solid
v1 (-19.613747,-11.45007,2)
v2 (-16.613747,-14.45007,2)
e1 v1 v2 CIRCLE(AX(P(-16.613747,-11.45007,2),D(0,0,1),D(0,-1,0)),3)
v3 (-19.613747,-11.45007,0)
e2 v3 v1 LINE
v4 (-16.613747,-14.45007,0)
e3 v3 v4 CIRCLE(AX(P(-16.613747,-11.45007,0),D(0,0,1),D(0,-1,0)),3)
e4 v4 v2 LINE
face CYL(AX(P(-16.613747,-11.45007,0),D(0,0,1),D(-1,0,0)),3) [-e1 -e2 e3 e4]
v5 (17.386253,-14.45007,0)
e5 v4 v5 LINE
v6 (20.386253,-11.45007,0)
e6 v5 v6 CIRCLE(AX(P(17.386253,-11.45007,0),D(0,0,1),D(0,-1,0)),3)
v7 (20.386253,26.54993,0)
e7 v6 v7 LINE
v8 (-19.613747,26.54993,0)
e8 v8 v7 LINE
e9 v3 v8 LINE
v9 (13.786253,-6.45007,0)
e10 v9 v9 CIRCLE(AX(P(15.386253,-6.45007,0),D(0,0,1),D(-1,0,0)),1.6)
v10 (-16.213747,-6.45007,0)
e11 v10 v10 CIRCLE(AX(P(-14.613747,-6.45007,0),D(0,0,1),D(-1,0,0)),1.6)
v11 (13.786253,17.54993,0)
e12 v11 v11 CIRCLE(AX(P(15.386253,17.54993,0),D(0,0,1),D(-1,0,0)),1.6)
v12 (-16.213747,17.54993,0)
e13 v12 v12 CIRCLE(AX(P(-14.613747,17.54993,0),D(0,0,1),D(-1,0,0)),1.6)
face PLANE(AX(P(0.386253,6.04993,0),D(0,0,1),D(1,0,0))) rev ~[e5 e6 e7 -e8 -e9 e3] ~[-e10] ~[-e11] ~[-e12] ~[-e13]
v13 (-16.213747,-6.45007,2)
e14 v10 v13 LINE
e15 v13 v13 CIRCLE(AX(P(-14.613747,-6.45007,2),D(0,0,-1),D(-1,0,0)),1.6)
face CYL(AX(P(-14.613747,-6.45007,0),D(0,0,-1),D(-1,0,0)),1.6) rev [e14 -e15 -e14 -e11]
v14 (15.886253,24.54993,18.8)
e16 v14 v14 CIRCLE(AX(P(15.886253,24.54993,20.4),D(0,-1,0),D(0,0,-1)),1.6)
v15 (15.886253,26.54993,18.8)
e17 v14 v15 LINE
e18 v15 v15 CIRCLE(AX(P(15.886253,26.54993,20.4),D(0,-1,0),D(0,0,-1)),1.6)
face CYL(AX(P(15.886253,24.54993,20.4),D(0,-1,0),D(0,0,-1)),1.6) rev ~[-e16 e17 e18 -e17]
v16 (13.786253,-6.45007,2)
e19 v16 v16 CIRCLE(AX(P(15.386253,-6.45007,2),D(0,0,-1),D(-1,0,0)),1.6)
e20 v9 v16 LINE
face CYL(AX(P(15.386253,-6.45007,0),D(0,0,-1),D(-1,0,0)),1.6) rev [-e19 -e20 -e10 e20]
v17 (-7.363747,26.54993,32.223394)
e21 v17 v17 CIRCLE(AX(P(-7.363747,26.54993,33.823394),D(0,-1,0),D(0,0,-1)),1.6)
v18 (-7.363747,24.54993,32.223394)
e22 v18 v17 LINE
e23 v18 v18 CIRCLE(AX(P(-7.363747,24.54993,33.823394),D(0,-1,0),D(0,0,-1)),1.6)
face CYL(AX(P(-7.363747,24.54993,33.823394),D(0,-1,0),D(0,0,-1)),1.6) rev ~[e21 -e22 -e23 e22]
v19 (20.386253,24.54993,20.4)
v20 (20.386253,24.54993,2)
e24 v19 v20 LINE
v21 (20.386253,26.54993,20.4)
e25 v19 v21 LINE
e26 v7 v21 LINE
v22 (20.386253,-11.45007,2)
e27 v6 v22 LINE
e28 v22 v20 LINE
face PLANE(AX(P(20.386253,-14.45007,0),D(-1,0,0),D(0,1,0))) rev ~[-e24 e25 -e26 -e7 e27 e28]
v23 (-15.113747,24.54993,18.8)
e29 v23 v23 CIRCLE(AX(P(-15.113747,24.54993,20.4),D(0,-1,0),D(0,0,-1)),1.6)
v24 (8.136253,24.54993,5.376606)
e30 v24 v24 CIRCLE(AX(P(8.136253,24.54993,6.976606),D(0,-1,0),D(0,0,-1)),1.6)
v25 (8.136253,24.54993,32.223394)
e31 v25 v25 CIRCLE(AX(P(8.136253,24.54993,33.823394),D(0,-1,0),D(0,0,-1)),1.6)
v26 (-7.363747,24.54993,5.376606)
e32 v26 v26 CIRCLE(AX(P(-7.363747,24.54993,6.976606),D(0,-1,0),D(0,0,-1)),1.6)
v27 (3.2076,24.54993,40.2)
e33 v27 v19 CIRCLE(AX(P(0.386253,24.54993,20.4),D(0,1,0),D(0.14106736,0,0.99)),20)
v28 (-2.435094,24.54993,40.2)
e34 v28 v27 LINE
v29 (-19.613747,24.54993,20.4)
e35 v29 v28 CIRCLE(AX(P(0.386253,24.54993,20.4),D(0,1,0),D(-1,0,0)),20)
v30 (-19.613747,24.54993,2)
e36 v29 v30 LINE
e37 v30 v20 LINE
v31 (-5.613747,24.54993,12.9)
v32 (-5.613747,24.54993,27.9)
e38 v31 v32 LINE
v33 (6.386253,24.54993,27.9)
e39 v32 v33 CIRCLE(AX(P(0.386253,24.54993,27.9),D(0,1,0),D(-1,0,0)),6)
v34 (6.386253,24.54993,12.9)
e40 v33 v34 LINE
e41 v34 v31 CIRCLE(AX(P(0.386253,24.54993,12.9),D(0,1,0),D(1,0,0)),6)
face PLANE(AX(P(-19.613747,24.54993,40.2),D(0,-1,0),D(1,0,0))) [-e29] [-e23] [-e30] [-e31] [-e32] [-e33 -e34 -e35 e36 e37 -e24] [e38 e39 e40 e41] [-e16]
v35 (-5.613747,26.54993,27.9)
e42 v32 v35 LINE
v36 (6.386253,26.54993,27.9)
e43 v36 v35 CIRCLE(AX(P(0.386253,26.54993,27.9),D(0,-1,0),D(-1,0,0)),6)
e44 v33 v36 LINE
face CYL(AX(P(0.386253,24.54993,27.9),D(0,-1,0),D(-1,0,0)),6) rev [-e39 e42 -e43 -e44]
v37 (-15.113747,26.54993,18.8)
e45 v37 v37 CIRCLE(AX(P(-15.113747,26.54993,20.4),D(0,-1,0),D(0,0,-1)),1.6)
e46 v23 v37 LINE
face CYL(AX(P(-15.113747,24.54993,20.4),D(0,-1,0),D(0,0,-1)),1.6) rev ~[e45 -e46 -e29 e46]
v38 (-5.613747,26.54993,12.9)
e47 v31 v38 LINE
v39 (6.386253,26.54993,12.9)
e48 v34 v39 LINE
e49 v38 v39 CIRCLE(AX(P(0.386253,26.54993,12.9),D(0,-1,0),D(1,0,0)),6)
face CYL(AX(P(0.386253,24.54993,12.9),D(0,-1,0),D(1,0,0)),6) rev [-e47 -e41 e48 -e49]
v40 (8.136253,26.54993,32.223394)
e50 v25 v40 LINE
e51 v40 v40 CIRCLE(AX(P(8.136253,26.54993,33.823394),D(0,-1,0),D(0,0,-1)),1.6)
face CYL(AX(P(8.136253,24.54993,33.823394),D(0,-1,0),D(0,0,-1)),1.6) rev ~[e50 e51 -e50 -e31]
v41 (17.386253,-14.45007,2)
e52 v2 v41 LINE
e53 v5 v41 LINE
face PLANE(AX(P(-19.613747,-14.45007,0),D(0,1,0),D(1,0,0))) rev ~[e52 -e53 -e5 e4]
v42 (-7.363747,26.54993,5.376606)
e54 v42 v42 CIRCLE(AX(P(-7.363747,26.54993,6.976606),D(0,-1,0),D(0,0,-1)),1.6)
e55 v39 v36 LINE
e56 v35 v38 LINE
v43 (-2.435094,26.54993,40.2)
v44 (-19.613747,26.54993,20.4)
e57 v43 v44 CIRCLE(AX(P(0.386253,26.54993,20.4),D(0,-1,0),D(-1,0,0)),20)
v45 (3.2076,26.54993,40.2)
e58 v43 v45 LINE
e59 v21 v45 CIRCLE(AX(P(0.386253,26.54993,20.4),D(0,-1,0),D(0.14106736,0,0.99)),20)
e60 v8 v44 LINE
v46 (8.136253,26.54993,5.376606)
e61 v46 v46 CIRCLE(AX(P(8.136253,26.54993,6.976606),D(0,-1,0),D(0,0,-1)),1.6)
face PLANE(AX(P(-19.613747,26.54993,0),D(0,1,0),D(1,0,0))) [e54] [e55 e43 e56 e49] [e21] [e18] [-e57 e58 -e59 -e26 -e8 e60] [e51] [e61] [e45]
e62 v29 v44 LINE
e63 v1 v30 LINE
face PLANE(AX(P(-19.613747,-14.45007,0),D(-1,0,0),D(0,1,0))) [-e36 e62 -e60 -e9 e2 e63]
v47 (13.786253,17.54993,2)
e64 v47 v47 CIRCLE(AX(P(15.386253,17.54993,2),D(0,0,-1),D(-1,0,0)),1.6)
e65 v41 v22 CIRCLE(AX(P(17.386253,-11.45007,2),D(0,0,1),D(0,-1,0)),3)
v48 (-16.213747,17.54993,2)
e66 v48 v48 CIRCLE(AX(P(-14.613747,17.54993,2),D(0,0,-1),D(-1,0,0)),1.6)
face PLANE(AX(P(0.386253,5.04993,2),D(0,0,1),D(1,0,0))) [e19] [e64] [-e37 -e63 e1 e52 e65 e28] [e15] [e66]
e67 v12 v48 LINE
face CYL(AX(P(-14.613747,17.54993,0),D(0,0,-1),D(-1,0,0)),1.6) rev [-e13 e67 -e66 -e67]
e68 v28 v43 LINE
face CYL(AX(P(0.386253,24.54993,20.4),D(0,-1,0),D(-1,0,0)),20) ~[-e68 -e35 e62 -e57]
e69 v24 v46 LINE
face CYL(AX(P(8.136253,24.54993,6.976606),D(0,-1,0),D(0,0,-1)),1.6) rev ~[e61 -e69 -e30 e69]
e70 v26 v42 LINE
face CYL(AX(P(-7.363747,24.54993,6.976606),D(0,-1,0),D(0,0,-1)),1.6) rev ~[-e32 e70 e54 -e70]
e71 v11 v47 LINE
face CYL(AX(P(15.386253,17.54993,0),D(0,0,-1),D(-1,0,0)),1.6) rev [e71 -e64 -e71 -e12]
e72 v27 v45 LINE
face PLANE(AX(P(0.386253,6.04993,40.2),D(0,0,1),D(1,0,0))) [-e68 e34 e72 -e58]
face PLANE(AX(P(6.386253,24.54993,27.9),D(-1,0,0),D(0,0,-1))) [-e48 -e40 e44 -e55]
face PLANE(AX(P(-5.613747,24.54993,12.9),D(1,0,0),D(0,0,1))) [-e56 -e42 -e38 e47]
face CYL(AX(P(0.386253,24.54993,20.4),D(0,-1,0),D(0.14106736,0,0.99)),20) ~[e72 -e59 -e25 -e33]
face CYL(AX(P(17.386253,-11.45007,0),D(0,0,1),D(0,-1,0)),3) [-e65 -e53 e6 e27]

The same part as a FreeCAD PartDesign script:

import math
import FreeCAD as App
import Part
import Sketcher
Q = App.Units.Quantity


def edges_at(feature, points):
    """Names of the edges that pass closest to the given points."""
    edges = feature.Shape.Edges
    near = lambda p: min(range(len(edges)), key=lambda i: edges[i].distToShape(Part.Vertex(*p))[0])
    return sorted({f"Edge{near(p) + 1}" for p in points})

doc = App.newDocument("Part")
body = doc.addObject("PartDesign::Body", "Body")

sketch1 = body.newObject("Sketcher::SketchObject", "Sketch")
sketch1.AttachmentSupport = (doc.getObject("XY_Plane"), [""])
sketch1.MapMode = "FlatFace"
sketch1.addGeometry([
    Part.LineSegment(App.Vector(-19.6, 26.5, 0), App.Vector(-19.6, -14.5, 0)),
    Part.LineSegment(App.Vector(-19.6, -14.5, 0), App.Vector(20.4, -14.5, 0)),
    Part.LineSegment(App.Vector(20.4, -14.5, 0), App.Vector(20.4, 26.5, 0)),
    Part.LineSegment(App.Vector(20.4, 26.5, 0), App.Vector(-19.6, 26.5, 0)),
    Part.Circle(App.Vector(-14.6, -6.5, 0), App.Vector(0, 0, 1), 1.6),
    Part.Circle(App.Vector(15.4, -6.5, 0), App.Vector(0, 0, 1), 1.6),
    Part.Circle(App.Vector(-14.6, 17.5, 0), App.Vector(0, 0, 1), 1.6),
    Part.Circle(App.Vector(15.4, 17.5, 0), App.Vector(0, 0, 1), 1.6),
], False)
sketch1.addConstraint([
    Sketcher.Constraint("Coincident", 0, 2, 1, 1),
    Sketcher.Constraint("Coincident", 1, 2, 2, 1),
    Sketcher.Constraint("Coincident", 2, 2, 3, 1),
    Sketcher.Constraint("Coincident", 3, 2, 0, 1),
    Sketcher.Constraint("Vertical", 0),
    Sketcher.Constraint("Horizontal", 1),
    Sketcher.Constraint("Vertical", 2),
    Sketcher.Constraint("Horizontal", 3),
    Sketcher.Constraint("Equal", 4, 5),
    Sketcher.Constraint("Equal", 5, 6),
    Sketcher.Constraint("Equal", 6, 7),
    Sketcher.Constraint("Horizontal", 4, 3, 5, 3),
    Sketcher.Constraint("Horizontal", 6, 3, 7, 3),
    Sketcher.Constraint("Vertical", 4, 3, 6, 3),
    Sketcher.Constraint("Vertical", 5, 3, 7, 3),
    Sketcher.Constraint("Diameter", 4, Q("3.2 mm")),
    Sketcher.Constraint("DistanceX", 1, 1, 1, 2, Q("40 mm")),
    Sketcher.Constraint("DistanceY", 0, 2, 0, 1, Q("41 mm")),
    Sketcher.Constraint("DistanceX", 4, 3, 5, 3, Q("30 mm")),
    Sketcher.Constraint("DistanceY", 4, 3, 6, 3, Q("24 mm")),
    Sketcher.Constraint("DistanceX", 0, 2, 4, 3, Q("5 mm")),
    Sketcher.Constraint("DistanceY", 0, 2, 4, 3, Q("8 mm")),
    Sketcher.Constraint("DistanceY", 4, 3, -1, 1, Q("6.45007 mm")),
    Sketcher.Constraint("DistanceX", 4, 3, -1, 1, Q("14.613747 mm")),
])
pad1 = body.newObject("PartDesign::Pad", "Pad")
pad1.Profile = sketch1
pad1.Length = 40.2

sketch2 = body.newObject("Sketcher::SketchObject", "Sketch001")
sketch2.AttachmentSupport = (doc.getObject("XY_Plane"), [""])
sketch2.MapMode = "FlatFace"
sketch2.AttachmentOffset = App.Placement(App.Vector(0, 0, 40.2), App.Rotation())
sketch2.addGeometry([
    Part.LineSegment(App.Vector(-20, 25, 0), App.Vector(-20, -14, 0)),
    Part.LineSegment(App.Vector(-20, -14, 0), App.Vector(20, -14, 0)),
    Part.LineSegment(App.Vector(20, -14, 0), App.Vector(20, 25, 0)),
    Part.LineSegment(App.Vector(20, 25, 0), App.Vector(-20, 25, 0)),
], False)
sketch2.addConstraint([
    Sketcher.Constraint("Coincident", 0, 2, 1, 1),
    Sketcher.Constraint("Coincident", 1, 2, 2, 1),
    Sketcher.Constraint("Coincident", 2, 2, 3, 1),
    Sketcher.Constraint("Coincident", 3, 2, 0, 1),
    Sketcher.Constraint("Vertical", 0),
    Sketcher.Constraint("Horizontal", 1),
    Sketcher.Constraint("Vertical", 2),
    Sketcher.Constraint("Horizontal", 3),
    Sketcher.Constraint("DistanceX", 1, 1, 1, 2, Q("40 mm")),
    Sketcher.Constraint("DistanceY", 0, 2, 0, 1, Q("39 mm")),
    Sketcher.Constraint("DistanceY", 0, 2, -1, 1, Q("14.45007 mm")),
    Sketcher.Constraint("DistanceX", 0, 2, -1, 1, Q("19.613747 mm")),
])
pocket1 = body.newObject("PartDesign::Pocket", "Pocket")
pocket1.Profile = sketch2
pocket1.Length = 38.2

sketch3 = body.newObject("Sketcher::SketchObject", "Sketch002")
sketch3.AttachmentSupport = (doc.getObject("XZ_Plane"), [""])
sketch3.MapMode = "FlatFace"
sketch3.AttachmentOffset = App.Placement(App.Vector(0, 0, -24.54993), App.Rotation())
sketch3.addGeometry([
    Part.LineSegment(App.Vector(-2, 40, 0), App.Vector(-20, 40, 0)),
    Part.LineSegment(App.Vector(-20, 40, 0), App.Vector(-20, 20, 0)),
    Part.ArcOfCircle(Part.Circle(App.Vector(0, 20, 0), App.Vector(0, 0, 1), 20), math.radians(98), math.radians(180)),
    Part.LineSegment(App.Vector(20, 40, 0), App.Vector(3, 40, 0)),
    Part.ArcOfCircle(Part.Circle(App.Vector(0, 20, 0), App.Vector(0, 0, 1), 20), math.radians(0), math.radians(82)),
    Part.LineSegment(App.Vector(20, 20, 0), App.Vector(20, 40, 0)),
], False)
sketch3.addConstraint([
    Sketcher.Constraint("Coincident", 0, 2, 1, 1),
    Sketcher.Constraint("Tangent", 1, 2, 2, 2),
    Sketcher.Constraint("Coincident", 2, 1, 0, 1),
    Sketcher.Constraint("Coincident", 3, 2, 4, 2),
    Sketcher.Constraint("Tangent", 4, 1, 5, 1),
    Sketcher.Constraint("Coincident", 5, 2, 3, 1),
    Sketcher.Constraint("Horizontal", 0),
    Sketcher.Constraint("Vertical", 1),
    Sketcher.Constraint("Horizontal", 3),
    Sketcher.Constraint("Vertical", 5),
    Sketcher.Constraint("Coincident", 4, 3, 2, 3),
    Sketcher.Constraint("Equal", 2, 4),
    Sketcher.Constraint("Horizontal", 2, 1, 3, 2),
    Sketcher.Constraint("Radius", 2, Q("20 mm")),
    Sketcher.Constraint("DistanceY", 1, 2, 1, 1, Q("19.8 mm")),
    Sketcher.Constraint("DistanceY", -1, 1, 2, 3, Q("20.4 mm")),
    Sketcher.Constraint("DistanceX", -1, 1, 3, 2, Q("3.2076 mm")),
])
pocket2 = body.newObject("PartDesign::Pocket", "Pocket001")
pocket2.Profile = sketch3
pocket2.Type = "ThroughAll"

sketch4 = body.newObject("Sketcher::SketchObject", "Sketch003")
sketch4.AttachmentSupport = (doc.getObject("XZ_Plane"), [""])
sketch4.MapMode = "FlatFace"
sketch4.AttachmentOffset = App.Placement(App.Vector(0, 0, -24.54993), App.Rotation())
sketch4.addGeometry([
    Part.Circle(App.Vector(-15.1, 20.4, 0), App.Vector(0, 0, 1), 1.6),
    Part.Circle(App.Vector(15.9, 20.4, 0), App.Vector(0, 0, 1), 1.6),
    Part.Circle(App.Vector(-7.4, 33.8, 0), App.Vector(0, 0, 1), 1.6),
    Part.Circle(App.Vector(8.1, 33.8, 0), App.Vector(0, 0, 1), 1.6),
    Part.Circle(App.Vector(-7.4, 7, 0), App.Vector(0, 0, 1), 1.6),
    Part.Circle(App.Vector(8.1, 7, 0), App.Vector(0, 0, 1), 1.6),
    Part.LineSegment(App.Vector(-5.6, 27.9, 0), App.Vector(-5.6, 12.9, 0)),
    Part.ArcOfCircle(Part.Circle(App.Vector(0.4, 12.9, 0), App.Vector(0, 0, 1), 6), math.radians(180), math.radians(360)),
    Part.LineSegment(App.Vector(6.4, 12.9, 0), App.Vector(6.4, 27.9, 0)),
    Part.ArcOfCircle(Part.Circle(App.Vector(0.4, 27.9, 0), App.Vector(0, 0, 1), 6), math.radians(0), math.radians(180)),
], False)
sketch4.addConstraint([
    Sketcher.Constraint("Tangent", 6, 2, 7, 1),
    Sketcher.Constraint("Tangent", 7, 2, 8, 1),
    Sketcher.Constraint("Tangent", 8, 2, 9, 1),
    Sketcher.Constraint("Tangent", 9, 2, 6, 1),
    Sketcher.Constraint("Vertical", 6),
    Sketcher.Constraint("Vertical", 8),
    Sketcher.Constraint("Equal", 0, 1),
    Sketcher.Constraint("Equal", 1, 2),
    Sketcher.Constraint("Equal", 2, 3),
    Sketcher.Constraint("Equal", 3, 4),
    Sketcher.Constraint("Equal", 4, 5),
    Sketcher.Constraint("Horizontal", 0, 3, 1, 3),
    Sketcher.Constraint("Horizontal", 2, 3, 3, 3),
    Sketcher.Constraint("Horizontal", 4, 3, 5, 3),
    Sketcher.Constraint("Vertical", 2, 3, 4, 3),
    Sketcher.Constraint("Vertical", 3, 3, 5, 3),
    Sketcher.Constraint("Radius", 7, Q("6 mm")),
    Sketcher.Constraint("Diameter", 0, Q("3.2 mm")),
    Sketcher.Constraint("DistanceY", 6, 2, 6, 1, Q("15 mm")),
    Sketcher.Constraint("DistanceX", 0, 3, 1, 3, Q("31 mm")),
    Sketcher.Constraint("DistanceY", -1, 1, 0, 3, Q("20.4 mm")),
    Sketcher.Constraint("DistanceY", -1, 1, 7, 3, Q("12.9 mm")),
    Sketcher.Constraint("DistanceX", 2, 3, 3, 3, Q("15.5 mm")),
    Sketcher.Constraint("DistanceX", 0, 3, 7, 3, Q("15.5 mm")),
    Sketcher.Constraint("DistanceX", 0, 3, 2, 3, Q("7.75 mm")),
    Sketcher.Constraint("DistanceX", 0, 3, -1, 1, Q("15.113747 mm")),
    Sketcher.Constraint("DistanceY", -1, 1, 2, 3, Q("33.823394 mm")),
    Sketcher.Constraint("DistanceY", -1, 1, 4, 3, Q("6.976606 mm")),
])
pocket3 = body.newObject("PartDesign::Pocket", "Pocket002")
pocket3.Profile = sketch4
pocket3.Type = "ThroughAll"
doc.recompute()

fillet = body.newObject("PartDesign::Fillet", "Fillet")
fillet.Base = (pocket3, edges_at(pocket3, [(20.386, -14.45, 1), (-19.614, -14.45, 1)]))
fillet.Radius = 3

doc.recompute()
